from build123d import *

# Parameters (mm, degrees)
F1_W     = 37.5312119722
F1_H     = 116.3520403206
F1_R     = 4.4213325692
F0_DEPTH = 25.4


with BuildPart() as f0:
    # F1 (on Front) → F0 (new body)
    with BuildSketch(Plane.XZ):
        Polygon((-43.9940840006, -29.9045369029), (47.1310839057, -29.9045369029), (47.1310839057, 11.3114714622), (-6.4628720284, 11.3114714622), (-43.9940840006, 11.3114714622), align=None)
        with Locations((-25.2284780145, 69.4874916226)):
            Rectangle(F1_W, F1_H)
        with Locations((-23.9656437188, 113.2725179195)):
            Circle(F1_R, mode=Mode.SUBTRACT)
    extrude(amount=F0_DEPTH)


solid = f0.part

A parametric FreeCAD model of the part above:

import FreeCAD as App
import Part
import Sketcher

doc = App.newDocument("Part")
params = doc.addObject("Spreadsheet::Sheet", "Params")
for row, (alias, value) in enumerate([
    ("pad1_length", "1 in"),
], start=1):
    params.set(f"A{row}", alias)
    params.set(f"B{row}", "=" + value)
    params.setAlias(f"B{row}", alias)

body = doc.addObject("PartDesign::Body", "Body")

# Sketch on XZ plane
sketch1 = body.newObject("Sketcher::SketchObject", "Sketch")
sketch1.AttachmentSupport = (doc.getObject("XZ_Plane"), [""])
sketch1.MapMode = "FlatFace"
sketch1.addGeometry([
    Part.LineSegment(App.Vector(-44, -29.9, 0), App.Vector(47.1, -29.9, 0)),  # 0
    Part.LineSegment(App.Vector(47.1, -29.9, 0), App.Vector(47.1, 11.3, 0)),  # 1
    Part.LineSegment(App.Vector(47.1, 11.3, 0), App.Vector(-6.5, 11.3, 0)),  # 2
    Part.LineSegment(App.Vector(-6.5, 11.3, 0), App.Vector(-6.5, 127.7, 0)),  # 3
    Part.LineSegment(App.Vector(-6.5, 127.7, 0), App.Vector(-44, 127.7, 0)),  # 4
    Part.LineSegment(App.Vector(-44, 127.7, 0), App.Vector(-44, -29.9, 0)),  # 5
    Part.Circle(App.Vector(-24, 113.3, 0), App.Vector(0, 0, 1), 4.4),  # 6
], False)
sketch1.addConstraint([
    Sketcher.Constraint("Coincident", 0, 2, 1, 1),
    Sketcher.Constraint("Coincident", 1, 2, 2, 1),
    Sketcher.Constraint("Coincident", 2, 2, 3, 1),
    Sketcher.Constraint("Coincident", 3, 2, 4, 1),
    Sketcher.Constraint("Coincident", 4, 2, 5, 1),
    Sketcher.Constraint("Coincident", 5, 2, 0, 1),
    Sketcher.Constraint("Horizontal", 0),
    Sketcher.Constraint("Vertical", 1),
    Sketcher.Constraint("Horizontal", 2),
    Sketcher.Constraint("Vertical", 3),
    Sketcher.Constraint("Horizontal", 4),
    Sketcher.Constraint("Vertical", 5),
    Sketcher.Constraint("Diameter", 6, 8.842665),
    Sketcher.Constraint("DistanceX", 4, 2, 4, 1, 37.531212),
    Sketcher.Constraint("DistanceY", 1, 1, 1, 2, 41.216008),
    Sketcher.Constraint("DistanceY", 3, 1, 3, 2, 116.35204),
    Sketcher.Constraint("DistanceX", 0, 1, 0, 2, 91.125168),
    Sketcher.Constraint("DistanceY", -1, 1, 1, 2, 11.311471),
    Sketcher.Constraint("DistanceX", 6, 3, 2, 2, 17.502772),
    Sketcher.Constraint("DistanceX", 6, 3, -1, 1, 23.965644),
    Sketcher.Constraint("DistanceY", -1, 1, 6, 3, 113.272518),
])
pad1 = body.newObject("PartDesign::Pad", "Pad")
pad1.Profile = sketch1
pad1.setExpression("Length", "Params.pad1_length")

doc.recompute()
